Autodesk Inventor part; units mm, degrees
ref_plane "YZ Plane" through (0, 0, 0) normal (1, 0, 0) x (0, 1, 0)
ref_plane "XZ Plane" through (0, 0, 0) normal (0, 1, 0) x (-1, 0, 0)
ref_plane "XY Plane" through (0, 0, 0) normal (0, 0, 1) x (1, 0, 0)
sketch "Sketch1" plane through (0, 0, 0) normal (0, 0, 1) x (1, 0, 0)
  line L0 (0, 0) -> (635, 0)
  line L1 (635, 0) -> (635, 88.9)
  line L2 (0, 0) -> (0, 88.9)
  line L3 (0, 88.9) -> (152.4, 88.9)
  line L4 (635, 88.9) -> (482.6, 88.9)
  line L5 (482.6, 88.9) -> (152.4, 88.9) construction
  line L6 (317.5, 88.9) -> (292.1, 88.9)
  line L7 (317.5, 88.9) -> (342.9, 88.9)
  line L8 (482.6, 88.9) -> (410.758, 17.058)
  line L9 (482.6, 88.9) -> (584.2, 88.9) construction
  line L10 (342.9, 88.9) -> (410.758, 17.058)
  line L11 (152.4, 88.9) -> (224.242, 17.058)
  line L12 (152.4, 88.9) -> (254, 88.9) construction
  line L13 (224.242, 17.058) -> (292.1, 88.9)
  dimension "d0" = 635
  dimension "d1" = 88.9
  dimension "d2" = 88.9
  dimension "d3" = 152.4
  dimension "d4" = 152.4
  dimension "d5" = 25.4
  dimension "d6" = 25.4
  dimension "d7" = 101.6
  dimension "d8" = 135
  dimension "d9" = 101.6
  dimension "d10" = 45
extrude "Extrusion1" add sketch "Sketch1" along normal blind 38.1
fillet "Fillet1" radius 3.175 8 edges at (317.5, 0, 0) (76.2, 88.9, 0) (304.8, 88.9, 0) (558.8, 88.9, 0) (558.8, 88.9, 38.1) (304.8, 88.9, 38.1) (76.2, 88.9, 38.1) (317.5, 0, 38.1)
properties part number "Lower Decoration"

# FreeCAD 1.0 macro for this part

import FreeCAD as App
import Part
import Sketcher
Q = App.Units.Quantity


def edges_at(feature, points):
    """Names of the edges that pass closest to the given points."""
    edges = feature.Shape.Edges
    near = lambda p: min(range(len(edges)), key=lambda i: edges[i].distToShape(Part.Vertex(*p))[0])
    return sorted({f"Edge{near(p) + 1}" for p in points})

doc = App.newDocument("Part")
body = doc.addObject("PartDesign::Body", "Body")

sketch1 = body.newObject("Sketcher::SketchObject", "Sketch")
sketch1.AttachmentSupport = (doc.getObject("XY_Plane"), [""])
sketch1.MapMode = "FlatFace"
sketch1.addGeometry([
    Part.LineSegment(App.Vector(0, 89, 0), App.Vector(0, 0, 0)),
    Part.LineSegment(App.Vector(0, 0, 0), App.Vector(635, 0, 0)),
    Part.LineSegment(App.Vector(635, 0, 0), App.Vector(635, 89, 0)),
    Part.LineSegment(App.Vector(635, 89, 0), App.Vector(483, 89, 0)),
    Part.LineSegment(App.Vector(483, 89, 0), App.Vector(411, 17, 0)),
    Part.LineSegment(App.Vector(411, 17, 0), App.Vector(343, 89, 0)),
    Part.LineSegment(App.Vector(343, 89, 0), App.Vector(292, 89, 0)),
    Part.LineSegment(App.Vector(292, 89, 0), App.Vector(224, 17, 0)),
    Part.LineSegment(App.Vector(224, 17, 0), App.Vector(152, 89, 0)),
    Part.LineSegment(App.Vector(152, 89, 0), App.Vector(0, 89, 0)),
], False)
sketch1.addConstraint([
    Sketcher.Constraint("Coincident", 0, 2, 1, 1),
    Sketcher.Constraint("Coincident", 1, 2, 2, 1),
    Sketcher.Constraint("Coincident", 2, 2, 3, 1),
    Sketcher.Constraint("Coincident", 3, 2, 4, 1),
    Sketcher.Constraint("Coincident", 4, 2, 5, 1),
    Sketcher.Constraint("Coincident", 5, 2, 6, 1),
    Sketcher.Constraint("Coincident", 6, 2, 7, 1),
    Sketcher.Constraint("Coincident", 7, 2, 8, 1),
    Sketcher.Constraint("Coincident", 8, 2, 9, 1),
    Sketcher.Constraint("Coincident", 9, 2, 0, 1),
    Sketcher.Constraint("Vertical", 0),
    Sketcher.Constraint("Horizontal", 1),
    Sketcher.Constraint("Vertical", 2),
    Sketcher.Constraint("Horizontal", 3),
    Sketcher.Constraint("Horizontal", 6),
    Sketcher.Constraint("Horizontal", 9),
    Sketcher.Constraint("Coincident", 0, 2, -1, 1),
    Sketcher.Constraint("Perpendicular", 4, 8),
    Sketcher.Constraint("Horizontal", 3, 2, 5, 2),
    Sketcher.Constraint("Horizontal", 4, 2, 7, 2),
    Sketcher.Constraint("Horizontal", 6, 2, 8, 2),
    Sketcher.Constraint("Equal", 3, 9),
    Sketcher.Constraint("Equal", 5, 7),
    Sketcher.Constraint("Equal", 4, 8),
    Sketcher.Constraint("DistanceX", 1, 1, 1, 2, Q("25 in")),
    Sketcher.Constraint("DistanceX", 3, 2, 3, 1, Q("6 in")),
    Sketcher.Constraint("Distance", 4, Q("4 in")),
    Sketcher.Constraint("DistanceY", 0, 2, 0, 1, Q("3.5 in")),
    Sketcher.Constraint("DistanceX", 6, 2, 6, 1, Q("2 in")),
])
pad1 = body.newObject("PartDesign::Pad", "Pad")
pad1.Profile = sketch1
pad1.Length = Q("1.5 in")
doc.recompute()

fillet = body.newObject("PartDesign::Fillet", "Fillet")
fillet.Base = (pad1, edges_at(pad1, [
    (317.5, 0, 0),
    (76.2, 88.9, 0),
    (304.8, 88.9, 0),
    (558.8, 88.9, 0),
    (558.8, 88.9, 38.1),
    (304.8, 88.9, 38.1),
    (76.2, 88.9, 38.1),
    (317.5, 0, 38.1),
]))
fillet.Radius = Q("0.125 in")

doc.recompute()
